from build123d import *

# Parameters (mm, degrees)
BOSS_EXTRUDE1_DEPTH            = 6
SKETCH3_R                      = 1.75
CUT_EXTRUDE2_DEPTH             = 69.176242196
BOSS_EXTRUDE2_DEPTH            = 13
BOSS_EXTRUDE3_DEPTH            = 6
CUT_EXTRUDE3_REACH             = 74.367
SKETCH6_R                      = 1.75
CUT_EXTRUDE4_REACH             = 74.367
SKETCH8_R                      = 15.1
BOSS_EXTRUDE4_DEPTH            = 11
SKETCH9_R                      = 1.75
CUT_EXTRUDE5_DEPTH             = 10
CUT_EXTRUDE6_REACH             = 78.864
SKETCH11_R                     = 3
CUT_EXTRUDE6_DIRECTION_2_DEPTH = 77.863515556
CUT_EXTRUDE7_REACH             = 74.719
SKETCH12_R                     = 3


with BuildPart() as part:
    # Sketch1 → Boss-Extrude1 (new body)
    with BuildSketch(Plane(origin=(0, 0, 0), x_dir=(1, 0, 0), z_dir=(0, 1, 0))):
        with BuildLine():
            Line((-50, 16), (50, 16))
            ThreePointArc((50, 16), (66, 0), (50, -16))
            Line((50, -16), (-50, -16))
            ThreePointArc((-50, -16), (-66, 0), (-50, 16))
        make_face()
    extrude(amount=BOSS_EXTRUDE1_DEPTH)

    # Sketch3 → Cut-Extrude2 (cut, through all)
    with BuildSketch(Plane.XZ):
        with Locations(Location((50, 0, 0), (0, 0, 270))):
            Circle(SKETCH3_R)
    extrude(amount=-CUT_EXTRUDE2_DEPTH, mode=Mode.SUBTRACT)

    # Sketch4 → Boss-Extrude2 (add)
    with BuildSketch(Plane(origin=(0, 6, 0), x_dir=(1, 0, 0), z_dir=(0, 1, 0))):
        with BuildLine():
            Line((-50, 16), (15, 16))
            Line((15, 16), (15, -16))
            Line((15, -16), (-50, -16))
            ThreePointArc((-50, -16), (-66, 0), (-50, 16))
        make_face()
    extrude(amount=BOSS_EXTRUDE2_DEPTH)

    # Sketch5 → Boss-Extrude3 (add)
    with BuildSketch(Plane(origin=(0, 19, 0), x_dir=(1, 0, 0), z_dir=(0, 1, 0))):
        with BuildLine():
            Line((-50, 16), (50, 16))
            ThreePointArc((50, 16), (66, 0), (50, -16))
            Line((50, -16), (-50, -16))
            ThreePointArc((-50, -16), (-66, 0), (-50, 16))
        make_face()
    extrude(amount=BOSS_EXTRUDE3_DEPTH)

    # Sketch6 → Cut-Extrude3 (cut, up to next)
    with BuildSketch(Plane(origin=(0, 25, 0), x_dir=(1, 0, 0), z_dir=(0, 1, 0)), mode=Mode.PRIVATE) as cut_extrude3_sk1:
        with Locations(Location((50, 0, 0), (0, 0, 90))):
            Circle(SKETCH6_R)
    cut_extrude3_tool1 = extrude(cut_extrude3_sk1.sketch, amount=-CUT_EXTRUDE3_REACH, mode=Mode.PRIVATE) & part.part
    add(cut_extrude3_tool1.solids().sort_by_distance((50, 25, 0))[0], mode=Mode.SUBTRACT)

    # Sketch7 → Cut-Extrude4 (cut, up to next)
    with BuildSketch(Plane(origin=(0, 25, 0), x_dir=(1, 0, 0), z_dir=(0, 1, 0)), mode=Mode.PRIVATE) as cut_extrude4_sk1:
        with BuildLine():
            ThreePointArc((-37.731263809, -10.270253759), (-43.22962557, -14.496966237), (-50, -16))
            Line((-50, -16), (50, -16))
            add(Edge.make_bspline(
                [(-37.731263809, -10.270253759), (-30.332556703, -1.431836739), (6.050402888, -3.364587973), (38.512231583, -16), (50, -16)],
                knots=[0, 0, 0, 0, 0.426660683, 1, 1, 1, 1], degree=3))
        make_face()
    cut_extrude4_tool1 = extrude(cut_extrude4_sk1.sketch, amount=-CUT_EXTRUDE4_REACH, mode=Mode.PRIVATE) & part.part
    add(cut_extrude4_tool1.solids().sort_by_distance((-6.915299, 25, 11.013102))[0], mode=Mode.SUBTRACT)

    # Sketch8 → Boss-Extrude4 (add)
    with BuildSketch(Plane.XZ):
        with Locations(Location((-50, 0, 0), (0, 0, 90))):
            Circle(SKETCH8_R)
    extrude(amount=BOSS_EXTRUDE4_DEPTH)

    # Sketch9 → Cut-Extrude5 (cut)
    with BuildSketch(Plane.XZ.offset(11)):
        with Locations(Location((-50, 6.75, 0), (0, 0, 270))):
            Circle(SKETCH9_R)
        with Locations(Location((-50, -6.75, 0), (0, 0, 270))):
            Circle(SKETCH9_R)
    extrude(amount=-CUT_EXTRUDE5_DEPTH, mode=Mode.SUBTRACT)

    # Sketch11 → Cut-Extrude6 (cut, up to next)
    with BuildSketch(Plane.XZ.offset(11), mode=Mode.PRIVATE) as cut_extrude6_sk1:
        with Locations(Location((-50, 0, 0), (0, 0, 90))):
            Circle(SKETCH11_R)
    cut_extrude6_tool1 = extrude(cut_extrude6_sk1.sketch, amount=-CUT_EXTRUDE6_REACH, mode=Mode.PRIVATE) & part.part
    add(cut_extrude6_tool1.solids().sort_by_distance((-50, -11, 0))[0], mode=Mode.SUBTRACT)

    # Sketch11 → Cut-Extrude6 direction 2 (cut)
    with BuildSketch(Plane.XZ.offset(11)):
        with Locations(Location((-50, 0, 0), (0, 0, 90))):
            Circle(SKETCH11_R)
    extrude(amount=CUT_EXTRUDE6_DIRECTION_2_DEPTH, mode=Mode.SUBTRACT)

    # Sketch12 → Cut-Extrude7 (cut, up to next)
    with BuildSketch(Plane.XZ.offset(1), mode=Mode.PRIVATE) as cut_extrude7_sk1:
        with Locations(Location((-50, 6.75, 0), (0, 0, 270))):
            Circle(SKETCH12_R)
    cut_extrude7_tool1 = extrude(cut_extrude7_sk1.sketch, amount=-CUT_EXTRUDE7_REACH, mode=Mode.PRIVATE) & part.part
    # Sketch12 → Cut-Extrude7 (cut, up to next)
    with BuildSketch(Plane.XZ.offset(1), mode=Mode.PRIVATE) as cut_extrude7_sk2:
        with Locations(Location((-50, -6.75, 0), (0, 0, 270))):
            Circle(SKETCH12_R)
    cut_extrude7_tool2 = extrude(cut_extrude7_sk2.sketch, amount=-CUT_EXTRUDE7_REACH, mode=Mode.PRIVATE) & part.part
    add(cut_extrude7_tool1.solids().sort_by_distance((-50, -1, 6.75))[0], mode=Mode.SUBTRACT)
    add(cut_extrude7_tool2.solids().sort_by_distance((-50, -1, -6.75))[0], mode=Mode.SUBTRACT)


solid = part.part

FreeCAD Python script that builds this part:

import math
import FreeCAD as App
import Part
import Sketcher

doc = App.newDocument("Part")
body = doc.addObject("PartDesign::Body", "Body")

# Sketch on XZ plane
sketch1 = doc.addObject("Sketcher::SketchObject", "Sketch")
body.addObject(sketch1)
sketch1.AttachmentSupport = (doc.XZ_Plane, [""])
sketch1.MapMode = "FlatFace"
sketch1.addGeometry([
    Part.LineSegment(App.Vector(50, -16, 0), App.Vector(-50, -16, 0)),
    Part.ArcOfCircle(Part.Circle(App.Vector(-50, 0, 0), App.Vector(0, 0, 1), 16), math.radians(90), math.radians(270)),
    Part.LineSegment(App.Vector(-50, 16, 0), App.Vector(50, 16, 0)),
    Part.ArcOfCircle(Part.Circle(App.Vector(50, 0, 0), App.Vector(0, 0, 1), 16), math.radians(-90), math.radians(90)),
], False)
sketch1.addConstraint([
    Sketcher.Constraint("Tangent", 0, 2, 1, 2),
    Sketcher.Constraint("Tangent", 1, 1, 2, 1),
    Sketcher.Constraint("Tangent", 2, 2, 3, 2),
    Sketcher.Constraint("Tangent", 3, 1, 0, 1),
    Sketcher.Constraint("Horizontal", 0),
    Sketcher.Constraint("Horizontal", 2),
    Sketcher.Constraint("Symmetric", 1, 3, 3, 3, -1, 1),
    Sketcher.Constraint("Radius", 1, 16.0),
    Sketcher.Constraint("DistanceX", 0, 2, 0, 1, 100.0),
])
pad1 = doc.addObject("PartDesign::Pad", "Pad")
body.addObject(pad1)
pad1.Profile = sketch1
pad1.Length = 6
pad1.Reversed = True

# Sketch on XZ plane
sketch2 = doc.addObject("Sketcher::SketchObject", "Sketch001")
body.addObject(sketch2)
sketch2.AttachmentSupport = (doc.XZ_Plane, [""])
sketch2.MapMode = "FlatFace"
sketch2.addGeometry(Part.Circle(App.Vector(50, 0, 0), App.Vector(0, 0, 1), 1.8), False)
sketch2.addConstraint([
    Sketcher.Constraint("PointOnObject", 0, 3, -1),
    Sketcher.Constraint("Diameter", 0, 3.5),
    Sketcher.Constraint("DistanceX", -1, 1, 0, 3, 50.0),
])
pocket1 = doc.addObject("PartDesign::Pocket", "Pocket")
body.addObject(pocket1)
pocket1.Profile = sketch2
pocket1.Type = "ThroughAll"

# Sketch on XZ plane
sketch3 = doc.addObject("Sketcher::SketchObject", "Sketch002")
body.addObject(sketch3)
sketch3.AttachmentSupport = (doc.XZ_Plane, [""])
sketch3.MapMode = "FlatFace"
sketch3.AttachmentOffset = App.Placement(App.Vector(0, 0, -6), App.Rotation())
sketch3.addGeometry([
    Part.LineSegment(App.Vector(15, -16, 0), App.Vector(-50, -16, 0)),
    Part.ArcOfCircle(Part.Circle(App.Vector(-50, 0, 0), App.Vector(0, 0, 1), 16), math.radians(90), math.radians(270)),
    Part.LineSegment(App.Vector(-50, 16, 0), App.Vector(15, 16, 0)),
    Part.LineSegment(App.Vector(15, 16, 0), App.Vector(15, -16, 0)),
], False)
sketch3.addConstraint([
    Sketcher.Constraint("Tangent", 0, 2, 1, 2),
    Sketcher.Constraint("Tangent", 1, 1, 2, 1),
    Sketcher.Constraint("Coincident", 2, 2, 3, 1),
    Sketcher.Constraint("Coincident", 3, 2, 0, 1),
    Sketcher.Constraint("Horizontal", 0),
    Sketcher.Constraint("Horizontal", 2),
    Sketcher.Constraint("Vertical", 3),
    Sketcher.Constraint("PointOnObject", 1, 3, -1),
    Sketcher.Constraint("Radius", 1, 16.0),
    Sketcher.Constraint("DistanceX", 0, 2, 0, 1, 65.0),
    Sketcher.Constraint("DistanceX", 1, 3, -1, 1, 50.0),
])
pad2 = doc.addObject("PartDesign::Pad", "Pad001")
body.addObject(pad2)
pad2.Profile = sketch3
pad2.Length = 13
pad2.Reversed = True

# Sketch on XZ plane
sketch4 = doc.addObject("Sketcher::SketchObject", "Sketch003")
body.addObject(sketch4)
sketch4.AttachmentSupport = (doc.XZ_Plane, [""])
sketch4.MapMode = "FlatFace"
sketch4.AttachmentOffset = App.Placement(App.Vector(0, 0, -19), App.Rotation())
sketch4.addGeometry([
    Part.LineSegment(App.Vector(50, -16, 0), App.Vector(-50, -16, 0)),
    Part.ArcOfCircle(Part.Circle(App.Vector(-50, 0, 0), App.Vector(0, 0, 1), 16), math.radians(90), math.radians(270)),
    Part.LineSegment(App.Vector(-50, 16, 0), App.Vector(50, 16, 0)),
    Part.ArcOfCircle(Part.Circle(App.Vector(50, 0, 0), App.Vector(0, 0, 1), 16), math.radians(-90), math.radians(90)),
], False)
sketch4.addConstraint([
    Sketcher.Constraint("Tangent", 0, 2, 1, 2),
    Sketcher.Constraint("Tangent", 1, 1, 2, 1),
    Sketcher.Constraint("Tangent", 2, 2, 3, 2),
    Sketcher.Constraint("Tangent", 3, 1, 0, 1),
    Sketcher.Constraint("Horizontal", 0),
    Sketcher.Constraint("Horizontal", 2),
    Sketcher.Constraint("Symmetric", 1, 3, 3, 3, -1, 1),
    Sketcher.Constraint("Radius", 1, 16.0),
    Sketcher.Constraint("DistanceX", 0, 2, 0, 1, 100.0),
])
pad3 = doc.addObject("PartDesign::Pad", "Pad002")
body.addObject(pad3)
pad3.Profile = sketch4
pad3.Length = 6
pad3.Reversed = True

# Sketch on XZ plane
sketch5 = doc.addObject("Sketcher::SketchObject", "Sketch004")
body.addObject(sketch5)
sketch5.AttachmentSupport = (doc.XZ_Plane, [""])
sketch5.MapMode = "FlatFace"
sketch5.AttachmentOffset = App.Placement(App.Vector(0, 0, -25), App.Rotation())
sketch5.addGeometry(Part.Circle(App.Vector(50, 0, 0), App.Vector(0, 0, 1), 1.8), False)
sketch5.addConstraint([
    Sketcher.Constraint("PointOnObject", 0, 3, -1),
    Sketcher.Constraint("Diameter", 0, 3.5),
    Sketcher.Constraint("DistanceX", -1, 1, 0, 3, 50.0),
])
pocket2 = doc.addObject("PartDesign::Pocket", "Pocket001")
body.addObject(pocket2)
pocket2.Profile = sketch5
pocket2.Type = "UpToFirst"
pocket2.Reversed = True

# Sketch on XZ plane
sketch6 = doc.addObject("Sketcher::SketchObject", "Sketch005")
body.addObject(sketch6)
sketch6.AttachmentSupport = (doc.XZ_Plane, [""])
sketch6.MapMode = "FlatFace"
sketch6.AttachmentOffset = App.Placement(App.Vector(0, 0, -25), App.Rotation())
sketch6.addGeometry([
    Part.ArcOfCircle(Part.Circle(App.Vector(-50, 0, 0), App.Vector(0, 0, 1), 16), math.radians(39.932961), math.radians(90)),
    Part.LineSegment(App.Vector(-50, 16, 0), App.Vector(50, 16, 0)),
    Part.BSplineCurve([App.Vector(-37.731264, 10.270254, 0), App.Vector(-30.332557, 1.431837, 0), App.Vector(6.050403, 3.364588, 0), App.Vector(38.512232, 16, 0), App.Vector(50, 16, 0)], [4, 1, 4], [0, 0.426660683, 1], False, 3, [1, 1, 1, 1, 1], False),
], False)
sketch6.addConstraint([
    Sketcher.Constraint("Block", 2),
    Sketcher.Constraint("Tangent", 0, 2, 1, 1),
    Sketcher.Constraint("Coincident", 1, 2, 2, 2),
    Sketcher.Constraint("Coincident", 2, 1, 0, 1),
    Sketcher.Constraint("Horizontal", 1),
    Sketcher.Constraint("PointOnObject", 0, 3, -1),
])
pocket3 = doc.addObject("PartDesign::Pocket", "Pocket002")
body.addObject(pocket3)
pocket3.Profile = sketch6
pocket3.Type = "UpToFirst"
pocket3.Reversed = True

# Sketch on XZ plane
sketch7 = doc.addObject("Sketcher::SketchObject", "Sketch006")
body.addObject(sketch7)
sketch7.AttachmentSupport = (doc.XZ_Plane, [""])
sketch7.MapMode = "FlatFace"
sketch7.addGeometry(Part.Circle(App.Vector(-50, 0, 0), App.Vector(0, 0, 1), 15), False)
sketch7.addConstraint([
    Sketcher.Constraint("PointOnObject", 0, 3, -1),
    Sketcher.Constraint("Diameter", 0, 30.2),
    Sketcher.Constraint("DistanceX", 0, 3, -1, 1, 50.0),
])
pad4 = doc.addObject("PartDesign::Pad", "Pad003")
body.addObject(pad4)
pad4.Profile = sketch7
pad4.Length = 11

# Sketch on XZ plane
sketch8 = doc.addObject("Sketcher::SketchObject", "Sketch007")
body.addObject(sketch8)
sketch8.AttachmentSupport = (doc.XZ_Plane, [""])
sketch8.MapMode = "FlatFace"
sketch8.AttachmentOffset = App.Placement(App.Vector(0, 0, 11), App.Rotation())
sketch8.addGeometry([
    Part.Circle(App.Vector(-50, 6.8, 0), App.Vector(0, 0, 1), 1.8),
    Part.Circle(App.Vector(-50, -6.8, 0), App.Vector(0, 0, 1), 1.8),
], False)
sketch8.addConstraint([
    Sketcher.Constraint("Equal", 0, 1),
    Sketcher.Constraint("Symmetric", 0, 3, 1, 3, -1),
    Sketcher.Constraint("Diameter", 0, 3.5),
    Sketcher.Constraint("DistanceX", 0, 3, -1, 1, 50.0),
    Sketcher.Constraint("DistanceY", 1, 3, 0, 3, 13.5),
])
pocket4 = doc.addObject("PartDesign::Pocket", "Pocket003")
body.addObject(pocket4)
pocket4.Profile = sketch8
pocket4.Length = 10

# Sketch on XZ plane
sketch9 = doc.addObject("Sketcher::SketchObject", "Sketch008")
body.addObject(sketch9)
sketch9.AttachmentSupport = (doc.XZ_Plane, [""])
sketch9.MapMode = "FlatFace"
sketch9.AttachmentOffset = App.Placement(App.Vector(0, 0, 11), App.Rotation())
sketch9.addGeometry(Part.Circle(App.Vector(-50, 0, 0), App.Vector(0, 0, 1), 3), False)
sketch9.addConstraint([
    Sketcher.Constraint("PointOnObject", 0, 3, -1),
    Sketcher.Constraint("Diameter", 0, 6.0),
    Sketcher.Constraint("DistanceX", 0, 3, -1, 1, 50.0),
])
pocket5 = doc.addObject("PartDesign::Pocket", "Pocket004")
body.addObject(pocket5)
pocket5.Profile = sketch9
pocket5.Type = "UpToFirst"

# Sketch on XZ plane
sketch10 = doc.addObject("Sketcher::SketchObject", "Sketch009")
body.addObject(sketch10)
sketch10.AttachmentSupport = (doc.XZ_Plane, [""])
sketch10.MapMode = "FlatFace"
sketch10.AttachmentOffset = App.Placement(App.Vector(0, 0, 11), App.Rotation())
sketch10.addGeometry(Part.Circle(App.Vector(-50, 0, 0), App.Vector(0, 0, 1), 3), False)
sketch10.addConstraint([
    Sketcher.Constraint("PointOnObject", 0, 3, -1),
    Sketcher.Constraint("Diameter", 0, 6.0),
    Sketcher.Constraint("DistanceX", 0, 3, -1, 1, 50.0),
])
pocket6 = doc.addObject("PartDesign::Pocket", "Pocket005")
body.addObject(pocket6)
pocket6.Profile = sketch10
pocket6.Length = 77.863516
pocket6.Reversed = True

# Sketch on XZ plane
sketch11 = doc.addObject("Sketcher::SketchObject", "Sketch010")
body.addObject(sketch11)
sketch11.AttachmentSupport = (doc.XZ_Plane, [""])
sketch11.MapMode = "FlatFace"
sketch11.AttachmentOffset = App.Placement(App.Vector(0, 0, 1), App.Rotation())
sketch11.addGeometry(Part.Circle(App.Vector(-50, 6.8, 0), App.Vector(0, 0, 1), 3), False)
sketch11.addConstraint([
    Sketcher.Constraint("Diameter", 0, 6.0),
    Sketcher.Constraint("DistanceX", 0, 3, -1, 1, 50.0),
    Sketcher.Constraint("DistanceY", -1, 1, 0, 3, 6.75),
])
pocket7 = doc.addObject("PartDesign::Pocket", "Pocket006")
body.addObject(pocket7)
pocket7.Profile = sketch11
pocket7.Type = "UpToFirst"

# Sketch on XZ plane
sketch12 = doc.addObject("Sketcher::SketchObject", "Sketch011")
body.addObject(sketch12)
sketch12.AttachmentSupport = (doc.XZ_Plane, [""])
sketch12.MapMode = "FlatFace"
sketch12.AttachmentOffset = App.Placement(App.Vector(0, 0, 1), App.Rotation())
sketch12.addGeometry(Part.Circle(App.Vector(-50, -6.8, 0), App.Vector(0, 0, 1), 3), False)
sketch12.addConstraint([
    Sketcher.Constraint("Diameter", 0, 6.0),
    Sketcher.Constraint("DistanceX", 0, 3, -1, 1, 50.0),
    Sketcher.Constraint("DistanceY", 0, 3, -1, 1, 6.75),
])
pocket8 = doc.addObject("PartDesign::Pocket", "Pocket007")
body.addObject(pocket8)
pocket8.Profile = sketch12
pocket8.Type = "UpToFirst"

doc.recompute()
